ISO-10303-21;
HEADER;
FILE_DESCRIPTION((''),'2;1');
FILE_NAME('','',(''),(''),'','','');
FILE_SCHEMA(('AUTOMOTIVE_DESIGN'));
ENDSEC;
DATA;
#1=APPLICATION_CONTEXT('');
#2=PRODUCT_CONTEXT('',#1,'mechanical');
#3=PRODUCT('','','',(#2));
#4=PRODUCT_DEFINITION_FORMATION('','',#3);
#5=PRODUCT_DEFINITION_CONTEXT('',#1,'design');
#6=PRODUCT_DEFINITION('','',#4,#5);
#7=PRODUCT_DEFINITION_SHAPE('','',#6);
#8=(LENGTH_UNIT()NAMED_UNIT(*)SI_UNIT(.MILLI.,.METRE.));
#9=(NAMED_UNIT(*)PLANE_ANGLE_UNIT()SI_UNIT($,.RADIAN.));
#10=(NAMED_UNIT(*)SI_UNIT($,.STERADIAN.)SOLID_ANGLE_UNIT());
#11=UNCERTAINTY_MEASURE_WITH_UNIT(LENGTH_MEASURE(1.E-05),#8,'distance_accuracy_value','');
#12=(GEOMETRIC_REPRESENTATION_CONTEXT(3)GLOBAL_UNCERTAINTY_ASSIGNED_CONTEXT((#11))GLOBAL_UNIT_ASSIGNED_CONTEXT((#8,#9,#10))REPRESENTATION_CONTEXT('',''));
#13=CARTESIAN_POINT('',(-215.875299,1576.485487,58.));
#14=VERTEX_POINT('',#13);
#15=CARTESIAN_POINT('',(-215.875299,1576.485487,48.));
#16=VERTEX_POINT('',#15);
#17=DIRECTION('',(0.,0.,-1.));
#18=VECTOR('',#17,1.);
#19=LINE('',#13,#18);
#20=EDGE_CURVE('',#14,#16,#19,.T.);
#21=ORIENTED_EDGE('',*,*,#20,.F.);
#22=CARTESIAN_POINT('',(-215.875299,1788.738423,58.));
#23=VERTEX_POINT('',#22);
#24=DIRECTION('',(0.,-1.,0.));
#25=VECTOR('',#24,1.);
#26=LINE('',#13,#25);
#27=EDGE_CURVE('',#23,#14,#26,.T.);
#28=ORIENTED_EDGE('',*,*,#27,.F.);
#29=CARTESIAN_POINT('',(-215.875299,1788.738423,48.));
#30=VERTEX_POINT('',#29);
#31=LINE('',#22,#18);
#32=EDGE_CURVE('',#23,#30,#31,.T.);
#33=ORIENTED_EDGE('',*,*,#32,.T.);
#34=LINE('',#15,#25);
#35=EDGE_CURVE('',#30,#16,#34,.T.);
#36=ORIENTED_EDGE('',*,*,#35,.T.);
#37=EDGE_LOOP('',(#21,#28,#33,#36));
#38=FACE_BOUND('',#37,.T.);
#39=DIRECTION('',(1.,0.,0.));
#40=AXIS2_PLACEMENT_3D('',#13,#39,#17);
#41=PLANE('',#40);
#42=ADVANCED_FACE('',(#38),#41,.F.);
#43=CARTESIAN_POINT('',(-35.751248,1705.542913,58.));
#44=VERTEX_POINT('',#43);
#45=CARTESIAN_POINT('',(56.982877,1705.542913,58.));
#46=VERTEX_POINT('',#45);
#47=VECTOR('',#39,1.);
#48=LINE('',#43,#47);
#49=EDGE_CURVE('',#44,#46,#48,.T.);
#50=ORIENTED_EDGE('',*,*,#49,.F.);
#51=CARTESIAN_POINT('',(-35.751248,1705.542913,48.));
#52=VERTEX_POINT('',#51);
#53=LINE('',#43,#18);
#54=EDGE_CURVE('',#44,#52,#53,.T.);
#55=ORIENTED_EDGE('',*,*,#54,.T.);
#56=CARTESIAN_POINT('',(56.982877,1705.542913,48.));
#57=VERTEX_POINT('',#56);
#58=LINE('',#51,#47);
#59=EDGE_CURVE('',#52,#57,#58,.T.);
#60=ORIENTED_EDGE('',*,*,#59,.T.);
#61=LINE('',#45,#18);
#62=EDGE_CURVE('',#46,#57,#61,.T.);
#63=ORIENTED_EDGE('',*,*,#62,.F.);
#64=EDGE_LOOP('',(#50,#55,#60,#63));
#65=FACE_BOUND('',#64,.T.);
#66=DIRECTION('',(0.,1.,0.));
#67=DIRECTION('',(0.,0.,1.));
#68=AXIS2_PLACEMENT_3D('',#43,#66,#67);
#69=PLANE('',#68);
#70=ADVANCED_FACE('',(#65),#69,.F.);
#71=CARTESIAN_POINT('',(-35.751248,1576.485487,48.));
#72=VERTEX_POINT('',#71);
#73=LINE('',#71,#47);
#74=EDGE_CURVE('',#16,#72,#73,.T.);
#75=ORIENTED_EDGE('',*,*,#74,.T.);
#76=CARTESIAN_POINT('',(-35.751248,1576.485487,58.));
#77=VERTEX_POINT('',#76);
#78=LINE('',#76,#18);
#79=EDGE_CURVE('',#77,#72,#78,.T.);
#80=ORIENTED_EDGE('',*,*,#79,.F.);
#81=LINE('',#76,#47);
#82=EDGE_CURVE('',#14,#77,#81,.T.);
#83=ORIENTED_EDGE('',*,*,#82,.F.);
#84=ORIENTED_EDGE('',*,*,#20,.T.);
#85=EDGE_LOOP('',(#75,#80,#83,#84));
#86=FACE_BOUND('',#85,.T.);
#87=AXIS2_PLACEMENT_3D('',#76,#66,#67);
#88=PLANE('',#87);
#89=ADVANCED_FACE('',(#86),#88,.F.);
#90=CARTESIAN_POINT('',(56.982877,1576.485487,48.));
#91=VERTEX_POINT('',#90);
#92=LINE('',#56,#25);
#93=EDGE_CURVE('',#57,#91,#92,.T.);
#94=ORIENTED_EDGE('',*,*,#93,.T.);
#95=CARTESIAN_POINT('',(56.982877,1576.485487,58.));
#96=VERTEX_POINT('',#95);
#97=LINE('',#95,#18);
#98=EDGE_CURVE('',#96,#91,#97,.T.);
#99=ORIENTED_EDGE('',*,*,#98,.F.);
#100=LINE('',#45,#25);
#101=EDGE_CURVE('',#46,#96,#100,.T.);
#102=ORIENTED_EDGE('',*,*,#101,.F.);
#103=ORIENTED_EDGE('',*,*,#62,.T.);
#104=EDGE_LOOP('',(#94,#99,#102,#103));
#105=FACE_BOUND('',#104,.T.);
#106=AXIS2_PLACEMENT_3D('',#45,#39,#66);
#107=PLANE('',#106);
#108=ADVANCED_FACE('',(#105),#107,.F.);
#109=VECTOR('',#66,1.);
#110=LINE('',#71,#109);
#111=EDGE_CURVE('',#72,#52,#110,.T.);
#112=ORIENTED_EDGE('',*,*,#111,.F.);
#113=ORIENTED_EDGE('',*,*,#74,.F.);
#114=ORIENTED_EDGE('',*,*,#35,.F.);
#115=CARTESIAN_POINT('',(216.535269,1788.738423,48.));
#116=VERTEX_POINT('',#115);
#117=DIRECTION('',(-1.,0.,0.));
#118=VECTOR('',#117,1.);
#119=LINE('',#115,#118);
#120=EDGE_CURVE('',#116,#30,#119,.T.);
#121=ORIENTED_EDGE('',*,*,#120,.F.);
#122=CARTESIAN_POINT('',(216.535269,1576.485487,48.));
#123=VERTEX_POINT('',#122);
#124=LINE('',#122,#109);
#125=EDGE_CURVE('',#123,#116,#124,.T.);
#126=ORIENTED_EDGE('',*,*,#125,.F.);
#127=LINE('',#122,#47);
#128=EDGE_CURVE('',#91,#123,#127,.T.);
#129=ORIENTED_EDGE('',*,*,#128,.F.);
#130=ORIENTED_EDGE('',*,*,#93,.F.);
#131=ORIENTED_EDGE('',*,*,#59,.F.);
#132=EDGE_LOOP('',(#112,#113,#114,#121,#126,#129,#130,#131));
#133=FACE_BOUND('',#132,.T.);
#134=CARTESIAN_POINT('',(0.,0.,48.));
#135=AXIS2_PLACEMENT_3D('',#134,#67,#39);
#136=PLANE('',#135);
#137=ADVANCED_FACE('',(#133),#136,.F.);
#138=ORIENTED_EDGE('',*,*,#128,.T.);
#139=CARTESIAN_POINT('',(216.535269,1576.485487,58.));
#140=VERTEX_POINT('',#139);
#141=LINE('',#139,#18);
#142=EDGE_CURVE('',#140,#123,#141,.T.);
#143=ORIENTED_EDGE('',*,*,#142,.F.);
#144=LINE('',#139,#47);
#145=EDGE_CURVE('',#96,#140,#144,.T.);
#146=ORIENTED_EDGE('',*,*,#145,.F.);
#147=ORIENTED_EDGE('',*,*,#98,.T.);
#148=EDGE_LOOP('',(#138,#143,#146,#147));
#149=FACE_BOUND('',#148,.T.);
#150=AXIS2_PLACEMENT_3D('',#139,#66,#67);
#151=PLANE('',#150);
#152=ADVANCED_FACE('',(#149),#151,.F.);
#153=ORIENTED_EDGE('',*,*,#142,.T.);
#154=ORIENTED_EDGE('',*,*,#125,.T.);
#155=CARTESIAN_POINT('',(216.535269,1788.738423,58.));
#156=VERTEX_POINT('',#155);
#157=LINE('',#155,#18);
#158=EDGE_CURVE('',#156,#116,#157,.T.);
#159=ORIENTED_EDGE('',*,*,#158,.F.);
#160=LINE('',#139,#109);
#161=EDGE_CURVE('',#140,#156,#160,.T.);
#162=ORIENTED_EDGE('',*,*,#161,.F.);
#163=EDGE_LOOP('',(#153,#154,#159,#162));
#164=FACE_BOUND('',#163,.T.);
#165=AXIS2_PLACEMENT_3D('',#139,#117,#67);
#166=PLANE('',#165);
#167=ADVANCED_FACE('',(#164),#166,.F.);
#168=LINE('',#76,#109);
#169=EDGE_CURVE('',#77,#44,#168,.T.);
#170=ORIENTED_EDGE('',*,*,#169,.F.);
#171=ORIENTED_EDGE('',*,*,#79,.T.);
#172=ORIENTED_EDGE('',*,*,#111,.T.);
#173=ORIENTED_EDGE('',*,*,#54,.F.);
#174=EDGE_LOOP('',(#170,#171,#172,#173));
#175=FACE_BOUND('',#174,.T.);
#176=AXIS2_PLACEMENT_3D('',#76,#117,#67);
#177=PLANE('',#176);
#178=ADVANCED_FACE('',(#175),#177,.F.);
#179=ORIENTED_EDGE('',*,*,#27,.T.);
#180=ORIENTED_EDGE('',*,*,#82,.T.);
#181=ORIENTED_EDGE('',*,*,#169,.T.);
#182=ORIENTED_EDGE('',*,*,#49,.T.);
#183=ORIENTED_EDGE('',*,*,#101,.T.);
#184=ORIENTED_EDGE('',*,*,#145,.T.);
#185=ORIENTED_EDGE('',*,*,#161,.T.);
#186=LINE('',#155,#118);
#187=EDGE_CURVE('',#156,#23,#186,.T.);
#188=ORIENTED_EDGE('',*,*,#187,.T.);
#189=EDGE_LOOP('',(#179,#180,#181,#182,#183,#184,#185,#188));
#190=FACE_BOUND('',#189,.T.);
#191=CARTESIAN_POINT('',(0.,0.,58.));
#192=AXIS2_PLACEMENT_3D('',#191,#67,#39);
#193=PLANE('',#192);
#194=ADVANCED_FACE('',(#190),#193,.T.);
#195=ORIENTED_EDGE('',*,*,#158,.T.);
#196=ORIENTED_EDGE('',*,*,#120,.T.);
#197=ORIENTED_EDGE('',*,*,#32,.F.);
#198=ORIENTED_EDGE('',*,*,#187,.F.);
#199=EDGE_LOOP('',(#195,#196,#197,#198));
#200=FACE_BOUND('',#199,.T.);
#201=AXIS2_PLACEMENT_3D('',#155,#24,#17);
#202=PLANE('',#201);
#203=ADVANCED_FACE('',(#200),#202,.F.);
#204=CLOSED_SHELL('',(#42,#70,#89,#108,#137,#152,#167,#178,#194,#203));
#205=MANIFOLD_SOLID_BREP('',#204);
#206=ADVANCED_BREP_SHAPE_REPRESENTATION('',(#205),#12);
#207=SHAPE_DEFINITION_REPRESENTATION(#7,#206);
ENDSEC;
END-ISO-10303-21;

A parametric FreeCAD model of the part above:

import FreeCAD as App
import Part
import Sketcher
Q = App.Units.Quantity


def add_polygon(sketch, points):
    """Adds a closed chain of lines whose ends are joined by coincident constraints."""
    first, n = sketch.GeometryCount, len(points)
    for a, b in zip(points, points[1:] + points[:1]):
        sketch.addGeometry(Part.LineSegment(App.Vector(*a, 0), App.Vector(*b, 0)), False)
    for i in range(n):
        sketch.addConstraint(Sketcher.Constraint("Coincident", first + i, 2, first + (i + 1) % n, 1))

doc = App.newDocument("Part")
body = doc.addObject("PartDesign::Body", "Body")

sketch1 = body.newObject("Sketcher::SketchObject", "Sketch")
sketch1.AttachmentSupport = (doc.getObject("XY_Plane"), [""])
sketch1.MapMode = "FlatFace"
sketch1.AttachmentOffset = App.Placement(App.Vector(0, 0, 48), App.Rotation())
add_polygon(sketch1, [(-35.751248, 1576.485487), (-35.751248, 1705.542913), (56.982877, 1705.542913), (56.982877, 1576.485487), (216.535269, 1576.485487), (216.535269, 1788.738423), (-215.875299, 1788.738423), (-215.875299, 1576.485487)])
sketch1.addConstraint(Sketcher.Constraint("Vertical", 0))
sketch1.addConstraint(Sketcher.Constraint("Horizontal", 1))
sketch1.addConstraint(Sketcher.Constraint("Vertical", 2))
sketch1.addConstraint(Sketcher.Constraint("Horizontal", 3))
sketch1.addConstraint(Sketcher.Constraint("Vertical", 4))
sketch1.addConstraint(Sketcher.Constraint("Horizontal", 5))
sketch1.addConstraint(Sketcher.Constraint("Vertical", 6))
sketch1.addConstraint(Sketcher.Constraint("Horizontal", 7))
sketch1.addConstraint(Sketcher.Constraint("Horizontal", 3, 2, 6, 2))
sketch1.addConstraint(Sketcher.Constraint("DistanceX", 3, 1, 3, 2, Q("159.552392 mm")))
sketch1.addConstraint(Sketcher.Constraint("DistanceX", 7, 1, 7, 2, Q("180.124051 mm")))
sketch1.addConstraint(Sketcher.Constraint("DistanceX", 5, 2, -1, 1, Q("215.875299 mm")))
sketch1.addConstraint(Sketcher.Constraint("DistanceX", 1, 1, 1, 2, Q("92.734125 mm")))
sketch1.addConstraint(Sketcher.Constraint("DistanceY", 0, 1, 0, 2, Q("129.057426 mm")))
sketch1.addConstraint(Sketcher.Constraint("DistanceY", 4, 1, 4, 2, Q("212.252935 mm")))
sketch1.addConstraint(Sketcher.Constraint("DistanceY", -1, 1, 0, 2, Q("1705.542913 mm")))
pad1 = body.newObject("PartDesign::Pad", "Pad")
pad1.Profile = sketch1
pad1.Length = 10

doc.recompute()
